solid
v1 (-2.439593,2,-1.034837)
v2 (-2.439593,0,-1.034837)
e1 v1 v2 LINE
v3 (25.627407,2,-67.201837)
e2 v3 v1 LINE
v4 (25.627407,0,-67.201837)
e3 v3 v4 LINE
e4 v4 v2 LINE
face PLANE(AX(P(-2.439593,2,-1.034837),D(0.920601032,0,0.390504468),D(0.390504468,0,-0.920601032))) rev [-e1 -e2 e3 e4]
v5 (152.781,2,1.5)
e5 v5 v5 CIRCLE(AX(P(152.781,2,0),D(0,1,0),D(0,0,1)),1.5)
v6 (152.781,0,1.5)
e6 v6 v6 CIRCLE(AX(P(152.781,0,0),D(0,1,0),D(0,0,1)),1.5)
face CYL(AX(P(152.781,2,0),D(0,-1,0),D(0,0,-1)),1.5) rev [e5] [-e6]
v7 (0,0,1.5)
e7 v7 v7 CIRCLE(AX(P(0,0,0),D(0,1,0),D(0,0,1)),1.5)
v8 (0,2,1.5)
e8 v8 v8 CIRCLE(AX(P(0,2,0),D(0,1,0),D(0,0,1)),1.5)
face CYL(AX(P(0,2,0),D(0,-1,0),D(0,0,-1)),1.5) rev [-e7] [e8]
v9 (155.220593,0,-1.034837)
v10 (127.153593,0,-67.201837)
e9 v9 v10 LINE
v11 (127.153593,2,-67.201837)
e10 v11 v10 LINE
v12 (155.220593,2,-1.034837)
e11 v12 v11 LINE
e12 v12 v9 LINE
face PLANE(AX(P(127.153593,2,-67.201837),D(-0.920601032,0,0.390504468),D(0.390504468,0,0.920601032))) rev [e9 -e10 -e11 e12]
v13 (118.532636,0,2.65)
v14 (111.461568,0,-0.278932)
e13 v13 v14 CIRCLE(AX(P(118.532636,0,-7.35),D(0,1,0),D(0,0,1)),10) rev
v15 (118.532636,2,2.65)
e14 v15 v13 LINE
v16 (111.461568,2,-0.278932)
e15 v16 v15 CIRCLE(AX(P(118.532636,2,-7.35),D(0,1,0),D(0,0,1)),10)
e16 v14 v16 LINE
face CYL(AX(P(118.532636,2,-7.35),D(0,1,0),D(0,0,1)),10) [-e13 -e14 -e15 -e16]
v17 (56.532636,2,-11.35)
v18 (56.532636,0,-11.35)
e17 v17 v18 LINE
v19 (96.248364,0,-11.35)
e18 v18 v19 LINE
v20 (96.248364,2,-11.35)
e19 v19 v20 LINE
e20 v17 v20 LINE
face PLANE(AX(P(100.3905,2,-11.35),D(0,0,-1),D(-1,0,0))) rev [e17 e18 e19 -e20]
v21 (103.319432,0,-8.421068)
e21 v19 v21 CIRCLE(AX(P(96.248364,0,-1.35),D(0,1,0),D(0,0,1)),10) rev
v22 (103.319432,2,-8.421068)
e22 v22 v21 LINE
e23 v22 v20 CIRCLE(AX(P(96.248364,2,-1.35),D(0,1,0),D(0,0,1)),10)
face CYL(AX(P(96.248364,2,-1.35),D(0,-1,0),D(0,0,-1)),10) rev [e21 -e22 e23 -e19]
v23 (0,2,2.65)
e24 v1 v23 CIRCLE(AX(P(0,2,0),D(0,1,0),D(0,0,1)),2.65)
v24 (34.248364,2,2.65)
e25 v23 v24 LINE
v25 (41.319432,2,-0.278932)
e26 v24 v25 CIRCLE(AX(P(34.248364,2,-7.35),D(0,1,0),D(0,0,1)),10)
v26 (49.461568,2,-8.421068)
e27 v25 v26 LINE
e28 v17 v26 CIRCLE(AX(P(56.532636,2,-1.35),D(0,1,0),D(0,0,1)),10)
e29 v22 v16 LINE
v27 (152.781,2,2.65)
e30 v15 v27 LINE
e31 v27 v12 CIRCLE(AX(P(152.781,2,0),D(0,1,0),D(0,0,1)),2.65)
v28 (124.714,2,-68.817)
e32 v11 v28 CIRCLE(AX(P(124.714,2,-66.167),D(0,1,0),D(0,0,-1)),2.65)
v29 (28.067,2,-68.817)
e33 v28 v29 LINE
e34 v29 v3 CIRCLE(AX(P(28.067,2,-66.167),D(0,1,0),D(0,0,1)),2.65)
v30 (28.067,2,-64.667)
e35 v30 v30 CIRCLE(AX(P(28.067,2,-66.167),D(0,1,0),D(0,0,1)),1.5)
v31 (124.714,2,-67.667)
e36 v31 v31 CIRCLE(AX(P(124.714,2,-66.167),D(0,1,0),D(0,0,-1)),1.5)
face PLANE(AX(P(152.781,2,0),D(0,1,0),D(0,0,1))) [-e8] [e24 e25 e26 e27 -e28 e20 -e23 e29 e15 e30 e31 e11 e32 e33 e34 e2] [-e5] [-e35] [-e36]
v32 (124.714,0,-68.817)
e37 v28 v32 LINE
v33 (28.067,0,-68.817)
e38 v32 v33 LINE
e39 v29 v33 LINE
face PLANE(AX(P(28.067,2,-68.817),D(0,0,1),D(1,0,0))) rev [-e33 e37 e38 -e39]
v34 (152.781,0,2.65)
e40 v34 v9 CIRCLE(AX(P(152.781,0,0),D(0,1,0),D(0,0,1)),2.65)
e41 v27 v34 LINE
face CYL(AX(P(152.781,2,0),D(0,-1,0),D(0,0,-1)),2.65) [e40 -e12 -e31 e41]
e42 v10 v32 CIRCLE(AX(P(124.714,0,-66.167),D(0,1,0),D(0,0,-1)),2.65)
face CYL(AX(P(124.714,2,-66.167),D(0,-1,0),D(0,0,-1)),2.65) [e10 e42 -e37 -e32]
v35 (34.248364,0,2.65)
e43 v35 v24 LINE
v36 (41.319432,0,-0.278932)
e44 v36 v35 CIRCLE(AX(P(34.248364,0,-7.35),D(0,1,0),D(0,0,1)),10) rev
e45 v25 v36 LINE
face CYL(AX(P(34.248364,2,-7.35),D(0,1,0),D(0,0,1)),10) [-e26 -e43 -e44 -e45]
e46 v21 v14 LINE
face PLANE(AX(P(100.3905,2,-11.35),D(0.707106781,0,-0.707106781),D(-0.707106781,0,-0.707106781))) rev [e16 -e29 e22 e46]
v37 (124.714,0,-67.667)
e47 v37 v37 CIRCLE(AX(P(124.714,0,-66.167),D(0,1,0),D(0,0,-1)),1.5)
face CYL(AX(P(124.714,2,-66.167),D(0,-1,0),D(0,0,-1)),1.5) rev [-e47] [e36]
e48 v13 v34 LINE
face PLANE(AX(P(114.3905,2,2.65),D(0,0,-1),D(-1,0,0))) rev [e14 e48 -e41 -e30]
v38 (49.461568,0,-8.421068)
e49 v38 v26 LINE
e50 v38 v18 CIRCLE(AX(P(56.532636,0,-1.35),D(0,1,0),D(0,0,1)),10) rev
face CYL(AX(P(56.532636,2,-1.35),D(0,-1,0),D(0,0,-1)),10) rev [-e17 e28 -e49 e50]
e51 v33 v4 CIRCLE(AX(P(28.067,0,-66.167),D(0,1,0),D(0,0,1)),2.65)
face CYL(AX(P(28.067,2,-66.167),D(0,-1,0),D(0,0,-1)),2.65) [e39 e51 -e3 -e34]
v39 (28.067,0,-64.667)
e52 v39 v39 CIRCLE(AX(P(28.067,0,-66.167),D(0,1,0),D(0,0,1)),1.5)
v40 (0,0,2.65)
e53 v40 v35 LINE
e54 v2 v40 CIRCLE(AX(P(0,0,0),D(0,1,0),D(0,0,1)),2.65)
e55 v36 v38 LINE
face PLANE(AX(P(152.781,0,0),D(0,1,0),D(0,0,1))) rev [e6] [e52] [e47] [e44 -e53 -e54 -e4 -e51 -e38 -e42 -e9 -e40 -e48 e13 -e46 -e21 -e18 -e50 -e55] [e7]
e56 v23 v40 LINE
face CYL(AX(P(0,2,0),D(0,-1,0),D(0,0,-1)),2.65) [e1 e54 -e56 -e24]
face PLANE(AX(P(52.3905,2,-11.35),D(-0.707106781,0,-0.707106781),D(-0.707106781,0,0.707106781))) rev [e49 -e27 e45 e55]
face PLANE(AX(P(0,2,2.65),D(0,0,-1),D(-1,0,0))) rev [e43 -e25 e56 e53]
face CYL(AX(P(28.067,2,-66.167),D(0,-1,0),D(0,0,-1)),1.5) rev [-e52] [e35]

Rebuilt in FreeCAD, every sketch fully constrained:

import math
import FreeCAD as App
import Part
import Sketcher
from FreeCAD import Vector
Q = App.Units.Quantity


def edges_at(feature, points):
    """Names of the edges that pass closest to the given points."""
    edges = feature.Shape.Edges
    near = lambda p: min(range(len(edges)), key=lambda i: edges[i].distToShape(Part.Vertex(*p))[0])
    return sorted({f"Edge{near(p) + 1}" for p in points})

doc = App.newDocument("Part")
body = doc.addObject("PartDesign::Body", "Body")

sketch1 = doc.addObject("Sketcher::SketchObject", "Sketch")
body.addObject(sketch1)
sketch1.AttachmentSupport = (doc.XZ_Plane, [""])
sketch1.MapMode = "FlatFace"
sketch1.addGeometry([
    Part.LineSegment(Vector(25.627407, -67.201837, 0), Vector(-2.439593, -1.034837, 0)),
    Part.ArcOfCircle(Part.Circle(Vector(0, 0, 0), Vector(0, 0, 1), 2.65), math.radians(90), math.radians(202.985893)),
    Part.LineSegment(Vector(0, 2.65, 0), Vector(38.3905, 2.65, 0)),
    Part.LineSegment(Vector(38.3905, 2.65, 0), Vector(52.3905, -11.35, 0)),
    Part.LineSegment(Vector(52.3905, -11.35, 0), Vector(100.3905, -11.35, 0)),
    Part.LineSegment(Vector(100.3905, -11.35, 0), Vector(114.3905, 2.65, 0)),
    Part.LineSegment(Vector(114.3905, 2.65, 0), Vector(152.781, 2.65, 0)),
    Part.ArcOfCircle(Part.Circle(Vector(152.781, 0, 0), Vector(0, 0, 1), 2.65), math.radians(-22.985893), math.radians(90)),
    Part.LineSegment(Vector(155.220593, -1.034837, 0), Vector(127.153593, -67.201837, 0)),
    Part.ArcOfCircle(Part.Circle(Vector(124.714, -66.167, 0), Vector(0, 0, 1), 2.65), math.radians(-90), math.radians(-22.985893)),
    Part.LineSegment(Vector(124.714, -68.817, 0), Vector(28.067, -68.817, 0)),
    Part.ArcOfCircle(Part.Circle(Vector(28.067, -66.167, 0), Vector(0, 0, 1), 2.65), math.radians(-157.014107), math.radians(-90)),
    Part.Circle(Vector(152.781, 0, 0), Vector(0, 0, 1), 1.5),
    Part.Circle(Vector(0, 0, 0), Vector(0, 0, 1), 1.5),
    Part.Circle(Vector(124.714, -66.167, 0), Vector(0, 0, 1), 1.5),
    Part.Circle(Vector(28.067, -66.167, 0), Vector(0, 0, 1), 1.5),
], False)
sketch1.addConstraint([
    Sketcher.Constraint("Tangent", 0, 2, 1, 2),
    Sketcher.Constraint("Tangent", 1, 1, 2, 1),
    Sketcher.Constraint("Coincident", 2, 2, 3, 1),
    Sketcher.Constraint("Coincident", 3, 2, 4, 1),
    Sketcher.Constraint("Coincident", 4, 2, 5, 1),
    Sketcher.Constraint("Coincident", 5, 2, 6, 1),
    Sketcher.Constraint("Tangent", 6, 2, 7, 2),
    Sketcher.Constraint("Tangent", 7, 1, 8, 1),
    Sketcher.Constraint("Tangent", 8, 2, 9, 2),
    Sketcher.Constraint("Tangent", 9, 1, 10, 1),
    Sketcher.Constraint("Tangent", 10, 2, 11, 2),
    Sketcher.Constraint("Tangent", 11, 1, 0, 1),
    Sketcher.Constraint("Horizontal", 2),
    Sketcher.Constraint("Horizontal", 4),
    Sketcher.Constraint("Horizontal", 6),
    Sketcher.Constraint("Horizontal", 10),
    Sketcher.Constraint("Coincident", 1, 3, -1, 1),
    Sketcher.Constraint("Coincident", 13, 3, -1, 1),
    Sketcher.Constraint("Coincident", 12, 3, 7, 3),
    Sketcher.Constraint("Coincident", 14, 3, 9, 3),
    Sketcher.Constraint("Coincident", 15, 3, 11, 3),
    Sketcher.Constraint("Equal", 1, 7),
    Sketcher.Constraint("Equal", 7, 9),
    Sketcher.Constraint("Equal", 9, 11),
    Sketcher.Constraint("Equal", 12, 13),
    Sketcher.Constraint("Equal", 13, 14),
    Sketcher.Constraint("Equal", 14, 15),
    Sketcher.Constraint("PointOnObject", 7, 3, -1),
    Sketcher.Constraint("Perpendicular", 3, 5),
    Sketcher.Constraint("Horizontal", 0, 2, 7, 1),
    Sketcher.Constraint("Equal", 2, 6),
    Sketcher.Constraint("Equal", 3, 5),
    Sketcher.Constraint("Diameter", 12, Q("3 mm")),
    Sketcher.Constraint("DistanceX", 4, 1, 4, 2, Q("48 mm")),
    Sketcher.Constraint("Radius", 1, Q("2.65 mm")),
    Sketcher.Constraint("DistanceX", 2, 2, 3, 2, Q("14 mm")),
    Sketcher.Constraint("DistanceX", 10, 2, 10, 1, Q("96.647 mm")),
    Sketcher.Constraint("DistanceX", 2, 1, 2, 2, Q("38.3905 mm")),
    Sketcher.Constraint("DistanceY", 9, 3, -1, 1, Q("66.167 mm")),
])
pad1 = doc.addObject("PartDesign::Pad", "Pad")
body.addObject(pad1)
pad1.Profile = sketch1
pad1.Length = 2
pad1.Reversed = True
doc.recompute()

fillet = doc.addObject("PartDesign::Fillet", "Fillet")
body.addObject(fillet)
fillet.Base = (pad1, edges_at(pad1, [(38.391, 1, 2.65)]))
fillet.Radius = 10
doc.recompute()

fillet2 = doc.addObject("PartDesign::Fillet", "Fillet001")
body.addObject(fillet2)
fillet2.Base = (fillet, edges_at(fillet, [(52.391, 1, -11.35)]))
fillet2.Radius = 10
doc.recompute()

fillet3 = doc.addObject("PartDesign::Fillet", "Fillet002")
body.addObject(fillet3)
fillet3.Base = (fillet2, edges_at(fillet2, [(100.391, 1, -11.35)]))
fillet3.Radius = 10
doc.recompute()

fillet4 = doc.addObject("PartDesign::Fillet", "Fillet003")
body.addObject(fillet4)
fillet4.Base = (fillet3, edges_at(fillet3, [(114.391, 1, 2.65)]))
fillet4.Radius = 10

doc.recompute()
